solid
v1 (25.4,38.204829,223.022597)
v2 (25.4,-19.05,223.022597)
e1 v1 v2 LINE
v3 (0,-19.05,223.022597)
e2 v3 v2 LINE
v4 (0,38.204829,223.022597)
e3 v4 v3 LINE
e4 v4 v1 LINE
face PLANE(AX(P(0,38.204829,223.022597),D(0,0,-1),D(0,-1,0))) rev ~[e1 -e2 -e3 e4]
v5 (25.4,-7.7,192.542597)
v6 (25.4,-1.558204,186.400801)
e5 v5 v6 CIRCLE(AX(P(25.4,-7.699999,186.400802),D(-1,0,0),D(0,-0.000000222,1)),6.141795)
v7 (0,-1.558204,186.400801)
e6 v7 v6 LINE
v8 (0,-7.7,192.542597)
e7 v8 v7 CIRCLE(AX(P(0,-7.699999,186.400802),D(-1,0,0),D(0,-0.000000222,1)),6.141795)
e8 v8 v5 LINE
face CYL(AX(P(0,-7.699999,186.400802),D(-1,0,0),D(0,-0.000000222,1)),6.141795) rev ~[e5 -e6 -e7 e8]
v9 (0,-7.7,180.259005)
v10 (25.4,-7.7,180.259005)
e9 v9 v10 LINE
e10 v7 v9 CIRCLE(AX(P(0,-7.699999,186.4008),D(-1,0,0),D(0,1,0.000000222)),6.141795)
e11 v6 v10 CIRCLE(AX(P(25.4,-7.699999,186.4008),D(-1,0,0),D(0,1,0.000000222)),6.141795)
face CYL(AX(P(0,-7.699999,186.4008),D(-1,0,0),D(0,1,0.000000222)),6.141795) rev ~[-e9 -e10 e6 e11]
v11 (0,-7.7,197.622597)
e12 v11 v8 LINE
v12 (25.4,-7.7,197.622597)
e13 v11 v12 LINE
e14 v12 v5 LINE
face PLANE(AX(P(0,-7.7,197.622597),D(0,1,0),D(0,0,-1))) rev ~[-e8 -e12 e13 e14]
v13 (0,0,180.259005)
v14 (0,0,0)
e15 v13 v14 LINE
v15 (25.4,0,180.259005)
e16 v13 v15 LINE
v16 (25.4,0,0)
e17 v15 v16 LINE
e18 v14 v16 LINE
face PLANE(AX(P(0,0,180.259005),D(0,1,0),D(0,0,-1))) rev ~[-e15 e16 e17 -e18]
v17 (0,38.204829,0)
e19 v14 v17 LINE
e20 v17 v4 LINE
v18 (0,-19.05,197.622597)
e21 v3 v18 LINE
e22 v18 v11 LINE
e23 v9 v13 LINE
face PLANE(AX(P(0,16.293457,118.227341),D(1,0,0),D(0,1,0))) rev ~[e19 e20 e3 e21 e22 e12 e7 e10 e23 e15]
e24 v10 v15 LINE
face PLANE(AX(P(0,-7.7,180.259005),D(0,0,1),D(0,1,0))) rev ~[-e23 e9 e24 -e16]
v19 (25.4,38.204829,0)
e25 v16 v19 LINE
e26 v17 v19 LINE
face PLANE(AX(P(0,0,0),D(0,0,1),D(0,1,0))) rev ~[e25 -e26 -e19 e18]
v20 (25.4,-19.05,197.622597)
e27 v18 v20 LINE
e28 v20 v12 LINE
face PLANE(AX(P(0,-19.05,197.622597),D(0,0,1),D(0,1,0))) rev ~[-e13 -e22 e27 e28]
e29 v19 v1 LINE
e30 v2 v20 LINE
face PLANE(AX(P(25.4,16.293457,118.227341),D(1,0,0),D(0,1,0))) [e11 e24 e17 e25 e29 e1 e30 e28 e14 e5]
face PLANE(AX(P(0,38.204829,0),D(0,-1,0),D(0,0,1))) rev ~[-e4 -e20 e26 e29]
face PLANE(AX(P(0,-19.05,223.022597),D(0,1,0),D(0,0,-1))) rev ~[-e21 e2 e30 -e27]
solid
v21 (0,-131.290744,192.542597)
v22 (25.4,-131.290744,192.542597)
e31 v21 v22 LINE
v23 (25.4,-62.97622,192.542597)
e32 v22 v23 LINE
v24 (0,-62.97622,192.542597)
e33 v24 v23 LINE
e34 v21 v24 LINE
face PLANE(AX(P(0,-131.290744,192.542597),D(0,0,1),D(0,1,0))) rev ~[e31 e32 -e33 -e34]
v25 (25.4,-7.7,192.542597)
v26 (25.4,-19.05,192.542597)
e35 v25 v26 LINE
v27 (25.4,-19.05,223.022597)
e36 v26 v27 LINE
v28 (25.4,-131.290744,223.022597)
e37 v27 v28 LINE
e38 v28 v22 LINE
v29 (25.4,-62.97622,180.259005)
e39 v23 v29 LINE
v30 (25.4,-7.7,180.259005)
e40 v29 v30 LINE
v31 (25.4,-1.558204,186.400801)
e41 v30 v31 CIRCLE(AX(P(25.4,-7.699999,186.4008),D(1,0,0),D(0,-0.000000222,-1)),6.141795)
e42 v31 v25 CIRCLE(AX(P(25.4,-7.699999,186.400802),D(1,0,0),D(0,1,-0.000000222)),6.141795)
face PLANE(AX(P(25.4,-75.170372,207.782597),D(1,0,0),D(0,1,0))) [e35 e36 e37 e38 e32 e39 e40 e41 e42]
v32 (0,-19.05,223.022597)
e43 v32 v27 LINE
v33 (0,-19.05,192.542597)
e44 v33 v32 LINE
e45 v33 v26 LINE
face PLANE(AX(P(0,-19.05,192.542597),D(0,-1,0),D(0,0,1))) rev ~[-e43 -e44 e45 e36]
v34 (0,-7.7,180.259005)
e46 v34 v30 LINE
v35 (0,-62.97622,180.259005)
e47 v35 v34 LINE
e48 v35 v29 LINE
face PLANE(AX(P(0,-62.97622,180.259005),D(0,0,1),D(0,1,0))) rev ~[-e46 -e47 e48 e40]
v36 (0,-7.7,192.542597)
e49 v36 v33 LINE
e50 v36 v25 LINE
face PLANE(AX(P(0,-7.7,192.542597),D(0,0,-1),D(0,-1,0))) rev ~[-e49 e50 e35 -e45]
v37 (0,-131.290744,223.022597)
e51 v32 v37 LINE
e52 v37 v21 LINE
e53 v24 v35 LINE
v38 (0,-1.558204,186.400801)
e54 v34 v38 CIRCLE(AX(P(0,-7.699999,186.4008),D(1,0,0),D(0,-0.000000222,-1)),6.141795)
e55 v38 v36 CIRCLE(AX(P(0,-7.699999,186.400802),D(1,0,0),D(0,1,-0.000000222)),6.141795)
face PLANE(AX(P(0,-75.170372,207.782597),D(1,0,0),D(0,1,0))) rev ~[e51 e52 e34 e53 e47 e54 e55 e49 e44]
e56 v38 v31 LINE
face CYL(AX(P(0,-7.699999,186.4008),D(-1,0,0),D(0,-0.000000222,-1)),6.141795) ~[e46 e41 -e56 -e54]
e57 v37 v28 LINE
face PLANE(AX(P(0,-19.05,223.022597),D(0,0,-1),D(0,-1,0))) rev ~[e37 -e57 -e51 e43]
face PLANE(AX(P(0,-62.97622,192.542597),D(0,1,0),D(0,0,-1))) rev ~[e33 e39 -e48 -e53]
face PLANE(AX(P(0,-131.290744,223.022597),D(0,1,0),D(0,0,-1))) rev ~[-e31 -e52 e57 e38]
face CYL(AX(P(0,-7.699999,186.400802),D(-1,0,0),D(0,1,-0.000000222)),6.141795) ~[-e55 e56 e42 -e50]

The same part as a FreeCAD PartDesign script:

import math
import FreeCAD as App
import Part
import Sketcher

V = App.Vector
Q = App.Units.Quantity

doc = App.newDocument("Part")
body = doc.addObject("PartDesign::Body", "Body")

sketch1 = body.newObject("Sketcher::SketchObject", "Sketch")
sketch1.AttachmentSupport = (doc.getObject("YZ_Plane"), [""])
sketch1.MapMode = "FlatFace"
sketch1.addGeometry(Part.LineSegment(V(0, 0, 0), V(38, 0, 0)), False)
sketch1.addGeometry(Part.LineSegment(V(38, 0, 0), V(38, 223, 0)), False)
sketch1.addGeometry(Part.LineSegment(V(38, 223, 0), V(-19, 223, 0)), False)
sketch1.addGeometry(Part.LineSegment(V(-19, 223, 0), V(-19, 198, 0)), False)
sketch1.addGeometry(Part.LineSegment(V(-19, 198, 0), V(-8, 198, 0)), False)
sketch1.addGeometry(Part.LineSegment(V(-8, 198, 0), V(-8, 193, 0)), False)
sketch1.addGeometry(Part.ArcOfCircle(Part.Circle(V(-8, 186, 0), V(0, 0, 1), 6), math.radians(0), math.radians(90)), False)
sketch1.addGeometry(Part.ArcOfCircle(Part.Circle(V(-8, 186, 0), V(0, 0, 1), 6), math.radians(-90), math.radians(0)), False)
sketch1.addGeometry(Part.LineSegment(V(-8, 180, 0), V(0, 180, 0)), False)
sketch1.addGeometry(Part.LineSegment(V(0, 180, 0), V(0, 0, 0)), False)
sketch1.addConstraint(Sketcher.Constraint("Coincident", 0, 2, 1, 1))
sketch1.addConstraint(Sketcher.Constraint("Coincident", 1, 2, 2, 1))
sketch1.addConstraint(Sketcher.Constraint("Coincident", 2, 2, 3, 1))
sketch1.addConstraint(Sketcher.Constraint("Coincident", 3, 2, 4, 1))
sketch1.addConstraint(Sketcher.Constraint("Coincident", 4, 2, 5, 1))
sketch1.addConstraint(Sketcher.Constraint("Coincident", 5, 2, 6, 2))
sketch1.addConstraint(Sketcher.Constraint("Tangent", 6, 1, 7, 2))
sketch1.addConstraint(Sketcher.Constraint("Tangent", 7, 1, 8, 1))
sketch1.addConstraint(Sketcher.Constraint("Coincident", 8, 2, 9, 1))
sketch1.addConstraint(Sketcher.Constraint("Coincident", 9, 2, 0, 1))
sketch1.addConstraint(Sketcher.Constraint("Horizontal", 0))
sketch1.addConstraint(Sketcher.Constraint("Vertical", 1))
sketch1.addConstraint(Sketcher.Constraint("Horizontal", 2))
sketch1.addConstraint(Sketcher.Constraint("Vertical", 3))
sketch1.addConstraint(Sketcher.Constraint("Horizontal", 4))
sketch1.addConstraint(Sketcher.Constraint("Vertical", 5))
sketch1.addConstraint(Sketcher.Constraint("Horizontal", 8))
sketch1.addConstraint(Sketcher.Constraint("Vertical", 9))
sketch1.addConstraint(Sketcher.Constraint("Coincident", 9, 2, -1, 1))
sketch1.addConstraint(Sketcher.Constraint("Equal", 6, 7))
sketch1.addConstraint(Sketcher.Constraint("Horizontal", 7, 3, 6, 1))
sketch1.addConstraint(Sketcher.Constraint("Vertical", 7, 3, 4, 2))
sketch1.addConstraint(Sketcher.Constraint("DistanceY", 3, 2, 3, 1, Q("1 in")))
sketch1.addConstraint(Sketcher.Constraint("DistanceY", 5, 2, 5, 1, Q("0.2 in")))
sketch1.addConstraint(Sketcher.Constraint("DistanceX", 2, 2, -1, 1, Q("0.75 in")))
sketch1.addConstraint(Sketcher.Constraint("DistanceX", 4, 1, 4, 2, Q("11.35 mm")))
sketch1.addConstraint(Sketcher.Constraint("Radius", 6, Q("6.141795 mm")))
sketch1.addConstraint(Sketcher.Constraint("DistanceX", 0, 1, 0, 2, Q("38.204829 mm")))
sketch1.addConstraint(Sketcher.Constraint("DistanceY", -1, 1, 7, 3, Q("186.4008 mm")))
pad1 = body.newObject("PartDesign::Pad", "Pad")
pad1.Profile = sketch1
pad1.Length = Q("1 in")
body2 = doc.addObject("PartDesign::Body", "Body001")

sketch2 = body2.newObject("Sketcher::SketchObject", "Sketch001")
sketch2.AttachmentSupport = (doc.getObject("YZ_Plane001"), [""])
sketch2.MapMode = "FlatFace"
sketch2.addGeometry(Part.LineSegment(V(-19, 223, 0), V(-131, 223, 0)), False)
sketch2.addGeometry(Part.LineSegment(V(-131, 223, 0), V(-131, 193, 0)), False)
sketch2.addGeometry(Part.LineSegment(V(-131, 193, 0), V(-63, 193, 0)), False)
sketch2.addGeometry(Part.LineSegment(V(-63, 193, 0), V(-63, 180, 0)), False)
sketch2.addGeometry(Part.LineSegment(V(-63, 180, 0), V(-8, 180, 0)), False)
sketch2.addGeometry(Part.ArcOfCircle(Part.Circle(V(-8, 186, 0), V(0, 0, 1), 6), math.radians(-90), math.radians(0)), False)
sketch2.addGeometry(Part.ArcOfCircle(Part.Circle(V(-8, 186, 0), V(0, 0, 1), 6), math.radians(0), math.radians(90)), False)
sketch2.addGeometry(Part.LineSegment(V(-8, 193, 0), V(-19, 193, 0)), False)
sketch2.addGeometry(Part.LineSegment(V(-19, 193, 0), V(-19, 223, 0)), False)
sketch2.addConstraint(Sketcher.Constraint("Coincident", 0, 2, 1, 1))
sketch2.addConstraint(Sketcher.Constraint("Coincident", 1, 2, 2, 1))
sketch2.addConstraint(Sketcher.Constraint("Coincident", 2, 2, 3, 1))
sketch2.addConstraint(Sketcher.Constraint("Coincident", 3, 2, 4, 1))
sketch2.addConstraint(Sketcher.Constraint("Tangent", 4, 2, 5, 1))
sketch2.addConstraint(Sketcher.Constraint("Tangent", 5, 2, 6, 1))
sketch2.addConstraint(Sketcher.Constraint("Tangent", 6, 2, 7, 1))
sketch2.addConstraint(Sketcher.Constraint("Coincident", 7, 2, 8, 1))
sketch2.addConstraint(Sketcher.Constraint("Coincident", 8, 2, 0, 1))
sketch2.addConstraint(Sketcher.Constraint("Horizontal", 0))
sketch2.addConstraint(Sketcher.Constraint("Vertical", 1))
sketch2.addConstraint(Sketcher.Constraint("Horizontal", 2))
sketch2.addConstraint(Sketcher.Constraint("Vertical", 3))
sketch2.addConstraint(Sketcher.Constraint("Horizontal", 4))
sketch2.addConstraint(Sketcher.Constraint("Horizontal", 7))
sketch2.addConstraint(Sketcher.Constraint("Vertical", 8))
sketch2.addConstraint(Sketcher.Constraint("Equal", 5, 6))
sketch2.addConstraint(Sketcher.Constraint("Horizontal", 6, 3, 5, 2))
sketch2.addConstraint(Sketcher.Constraint("Horizontal", 2, 2, 6, 2))
sketch2.addConstraint(Sketcher.Constraint("DistanceY", 1, 2, 1, 1, Q("1.2 in")))
sketch2.addConstraint(Sketcher.Constraint("DistanceX", 7, 2, -1, 1, Q("0.75 in")))
sketch2.addConstraint(Sketcher.Constraint("DistanceX", 7, 2, 7, 1, Q("11.35 mm")))
sketch2.addConstraint(Sketcher.Constraint("Radius", 5, Q("6.141795 mm")))
sketch2.addConstraint(Sketcher.Constraint("DistanceX", 4, 1, 4, 2, Q("55.27622 mm")))
sketch2.addConstraint(Sketcher.Constraint("DistanceY", -1, 1, 5, 3, Q("186.4008 mm")))
sketch2.addConstraint(Sketcher.Constraint("DistanceX", 0, 2, 0, 1, Q("112.240744 mm")))
pad2 = body2.newObject("PartDesign::Pad", "Pad001")
pad2.Profile = sketch2
pad2.Length = Q("1 in")

doc.recompute()
